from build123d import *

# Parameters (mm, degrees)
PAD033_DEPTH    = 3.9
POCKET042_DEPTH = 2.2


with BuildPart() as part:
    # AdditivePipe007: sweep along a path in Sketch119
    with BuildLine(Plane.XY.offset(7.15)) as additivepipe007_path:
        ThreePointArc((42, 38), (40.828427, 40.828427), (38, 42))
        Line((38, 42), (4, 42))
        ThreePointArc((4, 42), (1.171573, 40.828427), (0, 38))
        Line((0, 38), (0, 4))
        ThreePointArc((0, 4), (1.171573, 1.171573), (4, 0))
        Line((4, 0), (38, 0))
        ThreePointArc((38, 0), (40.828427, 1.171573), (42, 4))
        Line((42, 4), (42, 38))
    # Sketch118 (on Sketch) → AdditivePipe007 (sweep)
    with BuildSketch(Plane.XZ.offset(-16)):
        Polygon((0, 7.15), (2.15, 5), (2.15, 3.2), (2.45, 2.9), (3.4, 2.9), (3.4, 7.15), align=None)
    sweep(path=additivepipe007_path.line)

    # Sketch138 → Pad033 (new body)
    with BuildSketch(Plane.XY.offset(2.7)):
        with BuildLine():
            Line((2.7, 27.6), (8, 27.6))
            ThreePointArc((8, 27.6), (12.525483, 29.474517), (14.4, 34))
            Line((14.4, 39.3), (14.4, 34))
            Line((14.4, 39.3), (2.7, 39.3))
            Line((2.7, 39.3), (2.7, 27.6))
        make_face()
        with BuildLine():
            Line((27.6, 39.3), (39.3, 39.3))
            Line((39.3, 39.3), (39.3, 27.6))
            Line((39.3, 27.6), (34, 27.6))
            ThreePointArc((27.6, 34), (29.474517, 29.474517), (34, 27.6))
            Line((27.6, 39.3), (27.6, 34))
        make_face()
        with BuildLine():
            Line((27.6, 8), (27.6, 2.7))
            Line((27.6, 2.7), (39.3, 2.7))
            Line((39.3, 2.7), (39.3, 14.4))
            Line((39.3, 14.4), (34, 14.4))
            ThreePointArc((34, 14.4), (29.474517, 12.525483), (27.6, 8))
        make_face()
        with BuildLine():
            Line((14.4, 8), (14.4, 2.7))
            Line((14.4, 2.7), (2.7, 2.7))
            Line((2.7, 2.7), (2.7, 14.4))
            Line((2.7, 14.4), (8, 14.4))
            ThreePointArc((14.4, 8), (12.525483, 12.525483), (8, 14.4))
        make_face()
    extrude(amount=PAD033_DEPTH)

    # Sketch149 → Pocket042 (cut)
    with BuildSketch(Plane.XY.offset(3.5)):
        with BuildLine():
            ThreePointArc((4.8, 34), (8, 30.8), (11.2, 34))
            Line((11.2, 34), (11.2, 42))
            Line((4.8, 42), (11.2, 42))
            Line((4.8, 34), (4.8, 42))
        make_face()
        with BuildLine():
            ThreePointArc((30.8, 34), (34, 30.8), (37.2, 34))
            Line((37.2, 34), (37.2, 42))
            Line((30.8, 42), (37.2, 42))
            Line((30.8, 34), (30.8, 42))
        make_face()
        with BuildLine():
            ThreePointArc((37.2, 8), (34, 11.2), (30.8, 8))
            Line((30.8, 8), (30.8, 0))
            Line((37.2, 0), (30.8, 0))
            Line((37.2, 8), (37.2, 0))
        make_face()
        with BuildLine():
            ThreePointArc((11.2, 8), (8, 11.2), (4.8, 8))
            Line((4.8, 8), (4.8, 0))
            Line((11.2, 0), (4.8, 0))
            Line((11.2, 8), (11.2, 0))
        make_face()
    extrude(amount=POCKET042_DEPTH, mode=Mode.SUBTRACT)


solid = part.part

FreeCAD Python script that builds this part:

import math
import FreeCAD as App
import Part
import Sketcher

V = App.Vector
Q = App.Units.Quantity


def add_polygon(sketch, points):
    """Adds a closed chain of lines whose ends are joined by coincident constraints."""
    first, n = sketch.GeometryCount, len(points)
    for a, b in zip(points, points[1:] + points[:1]):
        sketch.addGeometry(Part.LineSegment(App.Vector(*a, 0), App.Vector(*b, 0)), False)
    for i in range(n):
        sketch.addConstraint(Sketcher.Constraint("Coincident", first + i, 2, first + (i + 1) % n, 1))

doc = App.newDocument("Part")
body = doc.addObject("PartDesign::Body", "Body")

# Sketch on XZ plane
sketch1 = body.newObject("Sketcher::SketchObject", "Sketch")
sketch1.AttachmentSupport = (doc.getObject("XZ_Plane"), [""])
sketch1.MapMode = "FlatFace"
sketch1.AttachmentOffset = App.Placement(V(0, 0, -16), App.Rotation())
add_polygon(sketch1, [(0, 7.15), (2.15, 5), (2.15, 3.2), (2.45, 2.9), (3.4, 2.9), (3.4, 7.15)])  # lines 0-5
sketch1.addConstraint([
    Sketcher.Constraint("Vertical", 1),
    Sketcher.Constraint("Horizontal", 3),
    Sketcher.Constraint("Vertical", 4),
    Sketcher.Constraint("Horizontal", 5),
    Sketcher.Constraint("PointOnObject", 5, 2, -2),
    Sketcher.Constraint("Parallel", 0, 2),
    Sketcher.Constraint("Angle", 0, Q("-45 deg")),
    Sketcher.Constraint("DistanceX", 5, 2, 5, 1, Q("3.4 mm")),
    Sketcher.Constraint("DistanceY", 1, 2, 1, 1, Q("1.8 mm")),
    Sketcher.Constraint("DistanceY", -1, 1, 0, 2, Q("5 mm")),
    Sketcher.Constraint("DistanceX", 3, 1, 3, 2, Q("0.95 mm")),
    Sketcher.Constraint("DistanceY", -1, 1, 2, 2, Q("2.9 mm")),
])

# Sketch on XY plane
sketch2 = body.newObject("Sketcher::SketchObject", "Sketch001")
sketch2.AttachmentSupport = (doc.getObject("XY_Plane"), [""])
sketch2.MapMode = "FlatFace"
sketch2.AttachmentOffset = App.Placement(V(0, 0, 7.15), App.Rotation())
sketch2.addGeometry([
    Part.ArcOfCircle(Part.Circle(V(38, 38, 0), V(0, 0, 1), 4), math.radians(0), math.radians(90)),  # 0
    Part.LineSegment(V(38, 42, 0), V(4, 42, 0)),  # 1
    Part.ArcOfCircle(Part.Circle(V(4, 38, 0), V(0, 0, 1), 4), math.radians(90), math.radians(180)),  # 2
    Part.LineSegment(V(0, 38, 0), V(0, 4, 0)),  # 3
    Part.ArcOfCircle(Part.Circle(V(4, 4, 0), V(0, 0, 1), 4), math.radians(-180), math.radians(-90)),  # 4
    Part.LineSegment(V(4, 0, 0), V(38, 0, 0)),  # 5
    Part.ArcOfCircle(Part.Circle(V(38, 4, 0), V(0, 0, 1), 4), math.radians(-90), math.radians(0)),  # 6
    Part.LineSegment(V(42, 4, 0), V(42, 38, 0)),  # 7
], False)
sketch2.addConstraint([
    Sketcher.Constraint("Tangent", 0, 2, 1, 1),
    Sketcher.Constraint("Tangent", 1, 2, 2, 1),
    Sketcher.Constraint("Tangent", 2, 2, 3, 1),
    Sketcher.Constraint("Tangent", 3, 2, 4, 1),
    Sketcher.Constraint("Tangent", 4, 2, 5, 1),
    Sketcher.Constraint("Tangent", 5, 2, 6, 1),
    Sketcher.Constraint("Tangent", 6, 2, 7, 1),
    Sketcher.Constraint("Tangent", 7, 2, 0, 1),
    Sketcher.Constraint("Horizontal", 1),
    Sketcher.Constraint("Vertical", 3),
    Sketcher.Constraint("Horizontal", 5),
    Sketcher.Constraint("Vertical", 7),
    Sketcher.Constraint("Equal", 0, 2),
    Sketcher.Constraint("Equal", 2, 4),
    Sketcher.Constraint("Equal", 4, 6),
    Sketcher.Constraint("PointOnObject", 2, 2, -2),
    Sketcher.Constraint("PointOnObject", 4, 2, -1),
    Sketcher.Constraint("Equal", 5, 3),
    Sketcher.Constraint("Radius", 0, Q("4 mm")),
    Sketcher.Constraint("DistanceX", 1, 2, 1, 1, Q("34 mm")),
])
doc.recompute()

additivepipe = body.newObject("PartDesign::AdditivePipe", "AdditivePipe")
additivepipe.Profile = sketch1
additivepipe.Spine = (sketch2, ["Edge1", "Edge2", "Edge3", "Edge4", "Edge5", "Edge6", "Edge7", "Edge8"])

# Sketch on XY plane
sketch3 = body.newObject("Sketcher::SketchObject", "Sketch002")
sketch3.AttachmentSupport = (doc.getObject("XY_Plane"), [""])
sketch3.MapMode = "FlatFace"
sketch3.AttachmentOffset = App.Placement(V(0, 0, 2.7), App.Rotation())
sketch3.addGeometry([
    Part.LineSegment(V(3, 28, 0), V(8, 28, 0)),  # 0
    Part.ArcOfCircle(Part.Circle(V(8, 34, 0), V(0, 0, 1), 6), math.radians(-90), math.radians(0)),  # 1
    Part.LineSegment(V(14, 34, 0), V(14, 39, 0)),  # 2
    Part.LineSegment(V(14, 39, 0), V(3, 39, 0)),  # 3
    Part.LineSegment(V(3, 39, 0), V(3, 28, 0)),  # 4
    Part.LineSegment(V(39, 39, 0), V(28, 39, 0)),  # 5
    Part.LineSegment(V(28, 39, 0), V(28, 34, 0)),  # 6
    Part.ArcOfCircle(Part.Circle(V(34, 34, 0), V(0, 0, 1), 6), math.radians(-180), math.radians(-90)),  # 7
    Part.LineSegment(V(34, 28, 0), V(39, 28, 0)),  # 8
    Part.LineSegment(V(39, 28, 0), V(39, 39, 0)),  # 9
    Part.LineSegment(V(28, 8, 0), V(28, 3, 0)),  # 10
    Part.LineSegment(V(28, 3, 0), V(39, 3, 0)),  # 11
    Part.LineSegment(V(39, 3, 0), V(39, 14, 0)),  # 12
    Part.LineSegment(V(39, 14, 0), V(34, 14, 0)),  # 13
    Part.ArcOfCircle(Part.Circle(V(34, 8, 0), V(0, 0, 1), 6), math.radians(90), math.radians(180)),  # 14
    Part.LineSegment(V(14, 3, 0), V(14, 8, 0)),  # 15
    Part.ArcOfCircle(Part.Circle(V(8, 8, 0), V(0, 0, 1), 6), math.radians(0), math.radians(90)),  # 16
    Part.LineSegment(V(8, 14, 0), V(3, 14, 0)),  # 17
    Part.LineSegment(V(3, 14, 0), V(3, 3, 0)),  # 18
    Part.LineSegment(V(3, 3, 0), V(14, 3, 0)),  # 19
], False)
sketch3.addConstraint([
    Sketcher.Constraint("Tangent", 0, 2, 1, 1),
    Sketcher.Constraint("Tangent", 1, 2, 2, 1),
    Sketcher.Constraint("Coincident", 2, 2, 3, 1),
    Sketcher.Constraint("Coincident", 3, 2, 4, 1),
    Sketcher.Constraint("Coincident", 4, 2, 0, 1),
    Sketcher.Constraint("Coincident", 5, 2, 6, 1),
    Sketcher.Constraint("Tangent", 6, 2, 7, 1),
    Sketcher.Constraint("Tangent", 7, 2, 8, 1),
    Sketcher.Constraint("Coincident", 8, 2, 9, 1),
    Sketcher.Constraint("Coincident", 9, 2, 5, 1),
    Sketcher.Constraint("Coincident", 10, 2, 11, 1),
    Sketcher.Constraint("Coincident", 11, 2, 12, 1),
    Sketcher.Constraint("Coincident", 12, 2, 13, 1),
    Sketcher.Constraint("Tangent", 13, 2, 14, 1),
    Sketcher.Constraint("Tangent", 14, 2, 10, 1),
    Sketcher.Constraint("Tangent", 15, 2, 16, 1),
    Sketcher.Constraint("Tangent", 16, 2, 17, 1),
    Sketcher.Constraint("Coincident", 17, 2, 18, 1),
    Sketcher.Constraint("Coincident", 18, 2, 19, 1),
    Sketcher.Constraint("Coincident", 19, 2, 15, 1),
    Sketcher.Constraint("Horizontal", 0),
    Sketcher.Constraint("Vertical", 2),
    Sketcher.Constraint("Horizontal", 3),
    Sketcher.Constraint("Vertical", 4),
    Sketcher.Constraint("Horizontal", 5),
    Sketcher.Constraint("Vertical", 6),
    Sketcher.Constraint("Horizontal", 8),
    Sketcher.Constraint("Vertical", 9),
    Sketcher.Constraint("Vertical", 10),
    Sketcher.Constraint("Horizontal", 11),
    Sketcher.Constraint("Vertical", 12),
    Sketcher.Constraint("Horizontal", 13),
    Sketcher.Constraint("Vertical", 15),
    Sketcher.Constraint("Horizontal", 17),
    Sketcher.Constraint("Vertical", 18),
    Sketcher.Constraint("Horizontal", 19),
    Sketcher.Constraint("Equal", 1, 7),
    Sketcher.Constraint("Equal", 7, 14),
    Sketcher.Constraint("Equal", 14, 16),
    Sketcher.Constraint("Horizontal", 1, 3, 7, 3),
    Sketcher.Constraint("Horizontal", 14, 3, 16, 3),
    Sketcher.Constraint("Horizontal", 3, 2, 5, 2),
    Sketcher.Constraint("Horizontal", 11, 2, 18, 2),
    Sketcher.Constraint("Vertical", 7, 3, 14, 3),
    Sketcher.Constraint("Vertical", 1, 3, 16, 3),
    Sketcher.Constraint("Vertical", 9, 2, 11, 2),
    Sketcher.Constraint("Vertical", 4, 2, 17, 2),
    Sketcher.Constraint("Equal", 3, 5),
    Sketcher.Constraint("Equal", 17, 2),
    Sketcher.Constraint("Equal", 6, 10),
    Sketcher.Constraint("Radius", 1, Q("6.400001 mm")),
    Sketcher.Constraint("DistanceX", 0, 1, 0, 2, Q("5.3 mm")),
    Sketcher.Constraint("DistanceX", -1, 1, 1, 3, Q("7.999999 mm")),
    Sketcher.Constraint("DistanceY", -1, 1, 1, 3, Q("34.000001 mm")),
    Sketcher.Constraint("DistanceX", -1, 1, 7, 3, Q("34.000001 mm")),
    Sketcher.Constraint("DistanceY", -1, 1, 14, 3, Q("7.999999 mm")),
])
pad1 = body.newObject("PartDesign::Pad", "Pad")
pad1.Profile = sketch3
pad1.Length = 3.9

# Sketch on XY plane
sketch4 = body.newObject("Sketcher::SketchObject", "Sketch003")
sketch4.AttachmentSupport = (doc.getObject("XY_Plane"), [""])
sketch4.MapMode = "FlatFace"
sketch4.AttachmentOffset = App.Placement(V(0, 0, 3.5), App.Rotation())
sketch4.addGeometry([
    Part.ArcOfCircle(Part.Circle(V(8, 34, 0), V(0, 0, 1), 3.2), math.radians(180), math.radians(360)),  # 0
    Part.LineSegment(V(11.2, 34, 0), V(11.2, 42, 0)),  # 1
    Part.LineSegment(V(11.2, 42, 0), V(4.8, 42, 0)),  # 2
    Part.LineSegment(V(4.8, 42, 0), V(4.8, 34, 0)),  # 3
    Part.ArcOfCircle(Part.Circle(V(34, 34, 0), V(0, 0, 1), 3.2), math.radians(180), math.radians(360)),  # 4
    Part.LineSegment(V(37.2, 34, 0), V(37.2, 42, 0)),  # 5
    Part.LineSegment(V(37.2, 42, 0), V(30.8, 42, 0)),  # 6
    Part.LineSegment(V(30.8, 42, 0), V(30.8, 34, 0)),  # 7
    Part.ArcOfCircle(Part.Circle(V(34, 8, 0), V(0, 0, 1), 3.2), math.radians(0), math.radians(180)),  # 8
    Part.LineSegment(V(30.8, 8, 0), V(30.8, 0, 0)),  # 9
    Part.LineSegment(V(30.8, 0, 0), V(37.2, 0, 0)),  # 10
    Part.LineSegment(V(37.2, 0, 0), V(37.2, 8, 0)),  # 11
    Part.ArcOfCircle(Part.Circle(V(8, 8, 0), V(0, 0, 1), 3.2), math.radians(0), math.radians(180)),  # 12
    Part.LineSegment(V(4.8, 8, 0), V(4.8, 0, 0)),  # 13
    Part.LineSegment(V(4.8, 0, 0), V(11.2, 0, 0)),  # 14
    Part.LineSegment(V(11.2, 0, 0), V(11.2, 8, 0)),  # 15
], False)
sketch4.addConstraint([
    Sketcher.Constraint("Tangent", 0, 2, 1, 1),
    Sketcher.Constraint("Coincident", 1, 2, 2, 1),
    Sketcher.Constraint("Coincident", 2, 2, 3, 1),
    Sketcher.Constraint("Tangent", 3, 2, 0, 1),
    Sketcher.Constraint("Tangent", 4, 2, 5, 1),
    Sketcher.Constraint("Coincident", 5, 2, 6, 1),
    Sketcher.Constraint("Coincident", 6, 2, 7, 1),
    Sketcher.Constraint("Tangent", 7, 2, 4, 1),
    Sketcher.Constraint("Tangent", 8, 2, 9, 1),
    Sketcher.Constraint("Coincident", 9, 2, 10, 1),
    Sketcher.Constraint("Coincident", 10, 2, 11, 1),
    Sketcher.Constraint("Tangent", 11, 2, 8, 1),
    Sketcher.Constraint("Tangent", 12, 2, 13, 1),
    Sketcher.Constraint("Coincident", 13, 2, 14, 1),
    Sketcher.Constraint("Coincident", 14, 2, 15, 1),
    Sketcher.Constraint("Tangent", 15, 2, 12, 1),
    Sketcher.Constraint("Vertical", 1),
    Sketcher.Constraint("Horizontal", 2),
    Sketcher.Constraint("Vertical", 3),
    Sketcher.Constraint("Vertical", 5),
    Sketcher.Constraint("Horizontal", 6),
    Sketcher.Constraint("Vertical", 7),
    Sketcher.Constraint("Vertical", 9),
    Sketcher.Constraint("Horizontal", 10),
    Sketcher.Constraint("Vertical", 11),
    Sketcher.Constraint("Vertical", 13),
    Sketcher.Constraint("Horizontal", 14),
    Sketcher.Constraint("Vertical", 15),
    Sketcher.Constraint("Equal", 0, 4),
    Sketcher.Constraint("Equal", 4, 8),
    Sketcher.Constraint("Equal", 8, 12),
    Sketcher.Constraint("PointOnObject", 9, 2, -1),
    Sketcher.Constraint("PointOnObject", 13, 2, -1),
    Sketcher.Constraint("Horizontal", 0, 3, 4, 3),
    Sketcher.Constraint("Horizontal", 8, 3, 12, 3),
    Sketcher.Constraint("Horizontal", 2, 2, 5, 2),
    Sketcher.Constraint("Vertical", 4, 3, 8, 3),
    Sketcher.Constraint("Vertical", 0, 3, 12, 3),
    Sketcher.Constraint("Equal", 7, 9),
    Sketcher.Constraint("Radius", 0, Q("3.2 mm")),
    Sketcher.Constraint("DistanceY", 1, 1, 1, 2, Q("8 mm")),
    Sketcher.Constraint("DistanceX", -1, 1, 0, 3, Q("8 mm")),
    Sketcher.Constraint("DistanceY", -1, 1, 0, 3, Q("34 mm")),
    Sketcher.Constraint("DistanceX", -1, 1, 4, 3, Q("34 mm")),
])
pocket1 = body.newObject("PartDesign::Pocket", "Pocket")
pocket1.Profile = sketch4
pocket1.Length = 2.2
pocket1.Reversed = True

doc.recompute()
